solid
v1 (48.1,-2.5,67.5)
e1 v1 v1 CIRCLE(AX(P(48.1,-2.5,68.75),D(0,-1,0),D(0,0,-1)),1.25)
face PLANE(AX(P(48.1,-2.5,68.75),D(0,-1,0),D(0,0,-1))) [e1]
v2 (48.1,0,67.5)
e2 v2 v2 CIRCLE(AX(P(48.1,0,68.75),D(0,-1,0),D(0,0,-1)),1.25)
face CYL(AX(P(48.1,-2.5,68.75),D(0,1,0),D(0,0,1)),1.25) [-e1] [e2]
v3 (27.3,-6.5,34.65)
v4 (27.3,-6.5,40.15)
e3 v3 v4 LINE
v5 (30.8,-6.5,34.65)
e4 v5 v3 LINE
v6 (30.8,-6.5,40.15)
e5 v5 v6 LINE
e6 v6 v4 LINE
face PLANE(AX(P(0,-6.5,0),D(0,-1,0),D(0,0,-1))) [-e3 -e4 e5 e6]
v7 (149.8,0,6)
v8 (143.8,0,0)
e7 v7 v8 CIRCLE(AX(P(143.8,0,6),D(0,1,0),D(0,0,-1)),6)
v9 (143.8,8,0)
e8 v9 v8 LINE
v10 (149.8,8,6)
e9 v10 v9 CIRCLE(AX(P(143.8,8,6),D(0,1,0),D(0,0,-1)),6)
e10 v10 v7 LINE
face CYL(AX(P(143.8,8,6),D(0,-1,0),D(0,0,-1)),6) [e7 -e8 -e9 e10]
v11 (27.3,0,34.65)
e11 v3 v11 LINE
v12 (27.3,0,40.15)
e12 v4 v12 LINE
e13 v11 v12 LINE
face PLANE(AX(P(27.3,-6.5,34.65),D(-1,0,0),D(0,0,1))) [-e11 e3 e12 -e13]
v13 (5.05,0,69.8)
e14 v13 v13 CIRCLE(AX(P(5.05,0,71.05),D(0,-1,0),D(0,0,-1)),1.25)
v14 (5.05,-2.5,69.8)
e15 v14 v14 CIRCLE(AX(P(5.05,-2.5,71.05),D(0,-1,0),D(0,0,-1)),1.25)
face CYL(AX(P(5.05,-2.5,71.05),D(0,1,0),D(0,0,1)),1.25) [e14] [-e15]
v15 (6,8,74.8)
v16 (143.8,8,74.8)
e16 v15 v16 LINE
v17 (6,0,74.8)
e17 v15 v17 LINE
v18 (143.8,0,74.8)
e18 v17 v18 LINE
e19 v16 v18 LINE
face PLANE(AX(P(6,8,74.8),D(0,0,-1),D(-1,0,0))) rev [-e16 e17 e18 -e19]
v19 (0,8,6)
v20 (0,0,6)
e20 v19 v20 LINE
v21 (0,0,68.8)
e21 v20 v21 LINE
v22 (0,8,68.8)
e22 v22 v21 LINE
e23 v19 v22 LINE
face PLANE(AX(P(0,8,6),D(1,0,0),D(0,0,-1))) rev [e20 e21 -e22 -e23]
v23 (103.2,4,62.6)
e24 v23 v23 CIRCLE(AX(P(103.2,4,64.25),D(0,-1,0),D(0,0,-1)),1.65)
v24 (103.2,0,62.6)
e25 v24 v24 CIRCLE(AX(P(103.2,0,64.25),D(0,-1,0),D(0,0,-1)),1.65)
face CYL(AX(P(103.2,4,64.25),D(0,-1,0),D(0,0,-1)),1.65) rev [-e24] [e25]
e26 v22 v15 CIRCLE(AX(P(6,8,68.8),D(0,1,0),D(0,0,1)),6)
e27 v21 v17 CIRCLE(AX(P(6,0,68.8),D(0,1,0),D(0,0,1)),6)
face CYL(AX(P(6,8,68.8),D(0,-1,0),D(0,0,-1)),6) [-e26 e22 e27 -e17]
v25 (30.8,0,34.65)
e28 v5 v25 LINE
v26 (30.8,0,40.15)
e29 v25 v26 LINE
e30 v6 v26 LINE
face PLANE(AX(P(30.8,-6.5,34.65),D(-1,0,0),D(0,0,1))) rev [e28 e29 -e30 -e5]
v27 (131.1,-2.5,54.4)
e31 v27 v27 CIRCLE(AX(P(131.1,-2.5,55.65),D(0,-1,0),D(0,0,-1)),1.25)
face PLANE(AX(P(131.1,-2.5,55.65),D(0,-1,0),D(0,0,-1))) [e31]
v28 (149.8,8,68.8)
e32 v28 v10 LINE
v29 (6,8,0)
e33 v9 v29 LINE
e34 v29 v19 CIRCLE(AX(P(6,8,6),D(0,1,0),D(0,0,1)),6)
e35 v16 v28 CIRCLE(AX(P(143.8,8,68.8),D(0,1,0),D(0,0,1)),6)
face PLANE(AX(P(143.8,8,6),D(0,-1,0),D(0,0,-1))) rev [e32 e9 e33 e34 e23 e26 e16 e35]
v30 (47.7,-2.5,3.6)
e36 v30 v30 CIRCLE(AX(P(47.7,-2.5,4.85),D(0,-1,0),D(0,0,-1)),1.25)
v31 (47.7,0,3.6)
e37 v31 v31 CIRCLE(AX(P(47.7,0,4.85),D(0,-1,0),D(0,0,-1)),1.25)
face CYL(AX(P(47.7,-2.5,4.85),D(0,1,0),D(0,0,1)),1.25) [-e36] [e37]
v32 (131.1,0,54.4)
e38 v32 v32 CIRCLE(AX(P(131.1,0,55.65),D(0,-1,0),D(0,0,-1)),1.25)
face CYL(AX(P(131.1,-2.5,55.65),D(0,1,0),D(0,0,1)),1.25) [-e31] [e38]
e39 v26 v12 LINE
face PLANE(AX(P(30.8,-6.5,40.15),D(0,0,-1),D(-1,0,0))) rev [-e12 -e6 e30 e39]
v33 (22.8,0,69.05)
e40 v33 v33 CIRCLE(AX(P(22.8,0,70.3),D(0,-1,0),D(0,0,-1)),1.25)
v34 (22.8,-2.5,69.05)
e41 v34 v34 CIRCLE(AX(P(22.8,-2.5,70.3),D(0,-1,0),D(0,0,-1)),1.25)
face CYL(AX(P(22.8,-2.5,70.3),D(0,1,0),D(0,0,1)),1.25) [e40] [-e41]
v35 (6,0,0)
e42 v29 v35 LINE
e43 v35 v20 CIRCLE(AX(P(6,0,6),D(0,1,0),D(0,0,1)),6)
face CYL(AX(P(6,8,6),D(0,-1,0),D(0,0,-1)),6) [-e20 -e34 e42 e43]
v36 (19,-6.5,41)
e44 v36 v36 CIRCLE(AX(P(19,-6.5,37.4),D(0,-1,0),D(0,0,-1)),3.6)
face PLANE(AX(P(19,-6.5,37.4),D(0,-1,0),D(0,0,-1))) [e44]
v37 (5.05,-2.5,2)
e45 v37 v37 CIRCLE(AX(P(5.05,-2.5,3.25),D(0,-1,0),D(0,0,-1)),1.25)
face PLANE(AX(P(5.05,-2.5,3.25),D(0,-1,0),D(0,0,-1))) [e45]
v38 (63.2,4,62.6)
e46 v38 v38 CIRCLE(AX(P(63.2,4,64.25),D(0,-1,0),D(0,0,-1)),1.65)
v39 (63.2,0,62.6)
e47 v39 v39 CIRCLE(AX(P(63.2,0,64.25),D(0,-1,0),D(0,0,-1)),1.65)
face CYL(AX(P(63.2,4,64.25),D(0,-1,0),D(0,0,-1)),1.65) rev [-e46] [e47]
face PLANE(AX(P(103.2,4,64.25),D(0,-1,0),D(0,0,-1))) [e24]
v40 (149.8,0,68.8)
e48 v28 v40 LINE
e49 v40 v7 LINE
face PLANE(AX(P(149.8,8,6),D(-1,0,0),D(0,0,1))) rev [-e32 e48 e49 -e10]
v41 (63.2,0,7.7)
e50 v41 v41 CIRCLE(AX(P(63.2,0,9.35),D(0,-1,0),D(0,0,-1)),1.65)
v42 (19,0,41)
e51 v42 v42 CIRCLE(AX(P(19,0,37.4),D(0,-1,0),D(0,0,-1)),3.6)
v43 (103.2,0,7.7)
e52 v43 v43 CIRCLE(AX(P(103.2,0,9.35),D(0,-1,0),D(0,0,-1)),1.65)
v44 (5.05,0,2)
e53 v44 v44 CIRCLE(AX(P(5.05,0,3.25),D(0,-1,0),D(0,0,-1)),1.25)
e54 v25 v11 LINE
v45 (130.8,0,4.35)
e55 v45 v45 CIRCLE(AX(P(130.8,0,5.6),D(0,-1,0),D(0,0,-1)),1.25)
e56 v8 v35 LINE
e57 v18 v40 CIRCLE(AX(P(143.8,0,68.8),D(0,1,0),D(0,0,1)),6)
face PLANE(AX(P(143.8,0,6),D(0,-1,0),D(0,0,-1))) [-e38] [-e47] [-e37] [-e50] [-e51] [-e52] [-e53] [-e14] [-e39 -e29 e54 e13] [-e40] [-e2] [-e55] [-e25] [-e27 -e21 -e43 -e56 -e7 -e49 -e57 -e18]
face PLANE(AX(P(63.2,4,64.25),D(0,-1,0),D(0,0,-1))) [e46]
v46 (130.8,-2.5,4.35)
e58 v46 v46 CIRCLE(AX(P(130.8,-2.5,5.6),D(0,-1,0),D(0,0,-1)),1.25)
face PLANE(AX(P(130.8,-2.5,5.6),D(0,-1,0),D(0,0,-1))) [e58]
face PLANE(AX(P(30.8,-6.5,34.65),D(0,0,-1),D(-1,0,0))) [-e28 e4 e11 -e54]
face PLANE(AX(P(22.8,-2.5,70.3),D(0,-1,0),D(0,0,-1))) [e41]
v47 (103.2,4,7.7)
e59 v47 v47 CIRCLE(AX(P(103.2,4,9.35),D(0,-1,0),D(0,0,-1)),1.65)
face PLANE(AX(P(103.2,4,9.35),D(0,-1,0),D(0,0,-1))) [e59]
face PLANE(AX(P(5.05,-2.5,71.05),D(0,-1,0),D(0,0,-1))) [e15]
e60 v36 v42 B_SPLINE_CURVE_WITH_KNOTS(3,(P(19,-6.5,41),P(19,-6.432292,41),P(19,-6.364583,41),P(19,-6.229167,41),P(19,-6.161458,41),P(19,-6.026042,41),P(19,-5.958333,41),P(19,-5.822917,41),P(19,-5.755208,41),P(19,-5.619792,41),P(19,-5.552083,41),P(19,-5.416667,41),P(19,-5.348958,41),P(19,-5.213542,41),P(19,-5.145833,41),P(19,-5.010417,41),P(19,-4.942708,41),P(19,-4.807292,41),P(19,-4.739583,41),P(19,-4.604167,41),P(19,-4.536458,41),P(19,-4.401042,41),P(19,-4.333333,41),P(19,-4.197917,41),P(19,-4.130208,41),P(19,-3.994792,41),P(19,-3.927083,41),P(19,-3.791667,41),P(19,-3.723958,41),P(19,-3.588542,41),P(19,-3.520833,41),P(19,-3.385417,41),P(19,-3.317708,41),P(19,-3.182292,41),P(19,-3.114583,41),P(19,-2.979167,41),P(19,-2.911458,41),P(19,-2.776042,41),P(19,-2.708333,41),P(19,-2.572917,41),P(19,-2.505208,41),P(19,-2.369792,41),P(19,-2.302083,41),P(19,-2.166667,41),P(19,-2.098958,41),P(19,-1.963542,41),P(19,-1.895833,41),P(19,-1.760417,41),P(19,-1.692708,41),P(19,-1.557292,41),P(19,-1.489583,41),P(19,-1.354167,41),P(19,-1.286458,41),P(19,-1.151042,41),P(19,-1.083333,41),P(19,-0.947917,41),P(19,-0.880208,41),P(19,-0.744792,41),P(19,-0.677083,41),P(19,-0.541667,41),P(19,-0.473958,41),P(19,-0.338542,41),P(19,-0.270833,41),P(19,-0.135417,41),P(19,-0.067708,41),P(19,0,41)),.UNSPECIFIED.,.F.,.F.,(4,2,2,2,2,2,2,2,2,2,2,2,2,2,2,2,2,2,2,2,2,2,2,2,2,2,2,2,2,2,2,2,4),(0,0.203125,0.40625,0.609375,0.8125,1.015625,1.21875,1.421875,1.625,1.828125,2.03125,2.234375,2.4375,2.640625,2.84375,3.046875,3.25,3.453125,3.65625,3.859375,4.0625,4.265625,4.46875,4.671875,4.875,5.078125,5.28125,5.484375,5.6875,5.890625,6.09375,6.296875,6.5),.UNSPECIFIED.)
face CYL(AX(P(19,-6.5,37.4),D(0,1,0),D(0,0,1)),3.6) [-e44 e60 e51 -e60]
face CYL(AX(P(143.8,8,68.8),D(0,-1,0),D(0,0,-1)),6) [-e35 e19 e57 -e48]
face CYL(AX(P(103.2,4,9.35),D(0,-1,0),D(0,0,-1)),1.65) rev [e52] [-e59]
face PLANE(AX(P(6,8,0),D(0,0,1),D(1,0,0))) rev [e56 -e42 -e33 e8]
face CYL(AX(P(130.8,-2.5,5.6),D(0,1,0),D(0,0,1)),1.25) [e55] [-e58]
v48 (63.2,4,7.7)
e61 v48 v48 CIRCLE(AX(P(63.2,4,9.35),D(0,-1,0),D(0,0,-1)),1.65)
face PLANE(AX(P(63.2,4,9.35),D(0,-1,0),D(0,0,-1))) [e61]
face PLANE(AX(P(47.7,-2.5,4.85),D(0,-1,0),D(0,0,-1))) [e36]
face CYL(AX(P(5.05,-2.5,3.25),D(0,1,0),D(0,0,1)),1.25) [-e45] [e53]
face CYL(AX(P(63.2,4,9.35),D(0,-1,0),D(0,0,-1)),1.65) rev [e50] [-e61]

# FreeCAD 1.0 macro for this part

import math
import FreeCAD as App
import Part
import Sketcher
Q = App.Units.Quantity


def add_polygon(sketch, points):
    """Adds a closed chain of lines whose ends are joined by coincident constraints."""
    first, n = sketch.GeometryCount, len(points)
    for a, b in zip(points, points[1:] + points[:1]):
        sketch.addGeometry(Part.LineSegment(App.Vector(*a, 0), App.Vector(*b, 0)), False)
    for i in range(n):
        sketch.addConstraint(Sketcher.Constraint("Coincident", first + i, 2, first + (i + 1) % n, 1))

doc = App.newDocument("Part")
body = doc.addObject("PartDesign::Body", "Body")

sketch1 = body.newObject("Sketcher::SketchObject", "Sketch")
sketch1.AttachmentSupport = (doc.getObject("XZ_Plane"), [""])
sketch1.MapMode = "FlatFace"
sketch1.addGeometry(Part.LineSegment(App.Vector(144, 0, 0), App.Vector(6, 0, 0)), False)
sketch1.addGeometry(Part.ArcOfCircle(Part.Circle(App.Vector(6, 6, 0), App.Vector(0, 0, 1), 6), math.radians(180), math.radians(270)), False)
sketch1.addGeometry(Part.LineSegment(App.Vector(0, 6, 0), App.Vector(0, 69, 0)), False)
sketch1.addGeometry(Part.ArcOfCircle(Part.Circle(App.Vector(6, 69, 0), App.Vector(0, 0, 1), 6), math.radians(90), math.radians(180)), False)
sketch1.addGeometry(Part.LineSegment(App.Vector(6, 75, 0), App.Vector(144, 75, 0)), False)
sketch1.addGeometry(Part.ArcOfCircle(Part.Circle(App.Vector(144, 69, 0), App.Vector(0, 0, 1), 6), math.radians(0), math.radians(90)), False)
sketch1.addGeometry(Part.LineSegment(App.Vector(150, 69, 0), App.Vector(150, 6, 0)), False)
sketch1.addGeometry(Part.ArcOfCircle(Part.Circle(App.Vector(144, 6, 0), App.Vector(0, 0, 1), 6), math.radians(-90), math.radians(0)), False)
sketch1.addConstraint(Sketcher.Constraint("Tangent", 0, 2, 1, 2))
sketch1.addConstraint(Sketcher.Constraint("Tangent", 1, 1, 2, 1))
sketch1.addConstraint(Sketcher.Constraint("Tangent", 2, 2, 3, 2))
sketch1.addConstraint(Sketcher.Constraint("Tangent", 3, 1, 4, 1))
sketch1.addConstraint(Sketcher.Constraint("Tangent", 4, 2, 5, 2))
sketch1.addConstraint(Sketcher.Constraint("Tangent", 5, 1, 6, 1))
sketch1.addConstraint(Sketcher.Constraint("Tangent", 6, 2, 7, 2))
sketch1.addConstraint(Sketcher.Constraint("Tangent", 7, 1, 0, 1))
sketch1.addConstraint(Sketcher.Constraint("Horizontal", 0))
sketch1.addConstraint(Sketcher.Constraint("Vertical", 2))
sketch1.addConstraint(Sketcher.Constraint("Horizontal", 4))
sketch1.addConstraint(Sketcher.Constraint("Vertical", 6))
sketch1.addConstraint(Sketcher.Constraint("Equal", 1, 3))
sketch1.addConstraint(Sketcher.Constraint("Equal", 3, 5))
sketch1.addConstraint(Sketcher.Constraint("Equal", 5, 7))
sketch1.addConstraint(Sketcher.Constraint("PointOnObject", 0, 2, -1))
sketch1.addConstraint(Sketcher.Constraint("PointOnObject", 1, 1, -2))
sketch1.addConstraint(Sketcher.Constraint("Radius", 1, Q("6 mm")))
sketch1.addConstraint(Sketcher.Constraint("DistanceX", 0, 2, 0, 1, Q("137.8 mm")))
sketch1.addConstraint(Sketcher.Constraint("DistanceY", 2, 1, 2, 2, Q("62.8 mm")))
pad1 = body.newObject("PartDesign::Pad", "Pad")
pad1.Profile = sketch1
pad1.Length = 8
pad1.Reversed = True

sketch2 = body.newObject("Sketcher::SketchObject", "Sketch001")
sketch2.AttachmentSupport = (doc.getObject("XZ_Plane"), [""])
sketch2.MapMode = "FlatFace"
sketch2.addGeometry(Part.Circle(App.Vector(130.8, 5.6, 0), App.Vector(0, 0, 1), 1.2), False)
sketch2.addGeometry(Part.Circle(App.Vector(131.1, 55.6, 0), App.Vector(0, 0, 1), 1.2), False)
sketch2.addGeometry(Part.Circle(App.Vector(47.7, 4.8, 0), App.Vector(0, 0, 1), 1.2), False)
sketch2.addGeometry(Part.Circle(App.Vector(48.1, 68.8, 0), App.Vector(0, 0, 1), 1.2), False)
sketch2.addGeometry(Part.Circle(App.Vector(22.8, 70.3, 0), App.Vector(0, 0, 1), 1.2), False)
sketch2.addGeometry(Part.Circle(App.Vector(5, 71, 0), App.Vector(0, 0, 1), 1.2), False)
sketch2.addGeometry(Part.Circle(App.Vector(5, 3.2, 0), App.Vector(0, 0, 1), 1.2), False)
sketch2.addConstraint(Sketcher.Constraint("Equal", 0, 1))
sketch2.addConstraint(Sketcher.Constraint("Equal", 1, 2))
sketch2.addConstraint(Sketcher.Constraint("Equal", 2, 3))
sketch2.addConstraint(Sketcher.Constraint("Equal", 3, 4))
sketch2.addConstraint(Sketcher.Constraint("Equal", 4, 5))
sketch2.addConstraint(Sketcher.Constraint("Equal", 5, 6))
sketch2.addConstraint(Sketcher.Constraint("Vertical", 5, 3, 6, 3))
sketch2.addConstraint(Sketcher.Constraint("Diameter", 0, Q("2.5 mm")))
sketch2.addConstraint(Sketcher.Constraint("DistanceX", 3, 3, 1, 3, Q("83 mm")))
sketch2.addConstraint(Sketcher.Constraint("DistanceX", 4, 3, 0, 3, Q("108 mm")))
sketch2.addConstraint(Sketcher.Constraint("DistanceX", -1, 1, 0, 3, Q("130.8 mm")))
sketch2.addConstraint(Sketcher.Constraint("DistanceY", -1, 1, 0, 3, Q("5.6 mm")))
sketch2.addConstraint(Sketcher.Constraint("DistanceX", -1, 1, 1, 3, Q("131.1 mm")))
sketch2.addConstraint(Sketcher.Constraint("DistanceX", -1, 1, 2, 3, Q("47.7 mm")))
sketch2.addConstraint(Sketcher.Constraint("DistanceY", -1, 1, 4, 3, Q("70.3 mm")))
sketch2.addConstraint(Sketcher.Constraint("DistanceY", 2, 3, 1, 3, Q("50.8 mm")))
sketch2.addConstraint(Sketcher.Constraint("DistanceY", 2, 3, 3, 3, Q("63.9 mm")))
sketch2.addConstraint(Sketcher.Constraint("DistanceY", 3, 3, 5, 3, Q("2.3 mm")))
sketch2.addConstraint(Sketcher.Constraint("DistanceY", 6, 3, 2, 3, Q("1.6 mm")))
sketch2.addConstraint(Sketcher.Constraint("DistanceY", -1, 1, 1, 3, Q("55.65 mm")))
sketch2.addConstraint(Sketcher.Constraint("DistanceX", -1, 1, 5, 3, Q("5.05 mm")))
pad2 = body.newObject("PartDesign::Pad", "Pad001")
pad2.Profile = sketch2
pad2.Length = 2.5

sketch3 = body.newObject("Sketcher::SketchObject", "Sketch002")
sketch3.AttachmentSupport = (doc.getObject("XZ_Plane"), [""])
sketch3.MapMode = "FlatFace"
sketch3.addGeometry(Part.Circle(App.Vector(103.2, 9.3, 0), App.Vector(0, 0, 1), 1.6), False)
sketch3.addGeometry(Part.Circle(App.Vector(103.2, 64.2, 0), App.Vector(0, 0, 1), 1.6), False)
sketch3.addGeometry(Part.Circle(App.Vector(63.2, 64.2, 0), App.Vector(0, 0, 1), 1.6), False)
sketch3.addGeometry(Part.Circle(App.Vector(63.2, 9.3, 0), App.Vector(0, 0, 1), 1.6), False)
sketch3.addConstraint(Sketcher.Constraint("Equal", 0, 1))
sketch3.addConstraint(Sketcher.Constraint("Equal", 1, 2))
sketch3.addConstraint(Sketcher.Constraint("Equal", 2, 3))
sketch3.addConstraint(Sketcher.Constraint("Horizontal", 1, 3, 2, 3))
sketch3.addConstraint(Sketcher.Constraint("Horizontal", 0, 3, 3, 3))
sketch3.addConstraint(Sketcher.Constraint("Vertical", 0, 3, 1, 3))
sketch3.addConstraint(Sketcher.Constraint("Vertical", 2, 3, 3, 3))
sketch3.addConstraint(Sketcher.Constraint("Diameter", 0, Q("3.3 mm")))
sketch3.addConstraint(Sketcher.Constraint("DistanceX", 2, 3, 1, 3, Q("40 mm")))
sketch3.addConstraint(Sketcher.Constraint("DistanceX", -1, 1, 0, 3, Q("103.2 mm")))
sketch3.addConstraint(Sketcher.Constraint("DistanceY", 0, 3, 1, 3, Q("54.9 mm")))
sketch3.addConstraint(Sketcher.Constraint("DistanceY", -1, 1, 0, 3, Q("9.35 mm")))
pocket1 = body.newObject("PartDesign::Pocket", "Pocket")
pocket1.Profile = sketch3
pocket1.Length = 4

sketch4 = body.newObject("Sketcher::SketchObject", "Sketch003")
sketch4.AttachmentSupport = (doc.getObject("XZ_Plane"), [""])
sketch4.MapMode = "FlatFace"
sketch4.addGeometry(Part.Circle(App.Vector(19, 37.4, 0), App.Vector(0, 0, 1), 3.6), False)
add_polygon(sketch4, [(30.8, 34.6), (30.8, 40.1), (27.3, 40.1), (27.3, 34.6)])
sketch4.addConstraint(Sketcher.Constraint("Vertical", 1))
sketch4.addConstraint(Sketcher.Constraint("Horizontal", 2))
sketch4.addConstraint(Sketcher.Constraint("Vertical", 3))
sketch4.addConstraint(Sketcher.Constraint("Horizontal", 4))
sketch4.addConstraint(Sketcher.Constraint("Diameter", 0, Q("7.2 mm")))
sketch4.addConstraint(Sketcher.Constraint("DistanceX", 2, 2, 2, 1, Q("3.5 mm")))
sketch4.addConstraint(Sketcher.Constraint("DistanceY", 1, 1, 1, 2, Q("5.5 mm")))
sketch4.addConstraint(Sketcher.Constraint("DistanceX", -1, 1, 0, 3, Q("19 mm")))
sketch4.addConstraint(Sketcher.Constraint("DistanceY", -1, 1, 0, 3, Q("37.4 mm")))
sketch4.addConstraint(Sketcher.Constraint("DistanceX", -1, 1, 1, 2, Q("30.8 mm")))
sketch4.addConstraint(Sketcher.Constraint("DistanceY", -1, 1, 1, 2, Q("40.15 mm")))
pad3 = body.newObject("PartDesign::Pad", "Pad002")
pad3.Profile = sketch4
pad3.Length = 6.5

doc.recompute()
